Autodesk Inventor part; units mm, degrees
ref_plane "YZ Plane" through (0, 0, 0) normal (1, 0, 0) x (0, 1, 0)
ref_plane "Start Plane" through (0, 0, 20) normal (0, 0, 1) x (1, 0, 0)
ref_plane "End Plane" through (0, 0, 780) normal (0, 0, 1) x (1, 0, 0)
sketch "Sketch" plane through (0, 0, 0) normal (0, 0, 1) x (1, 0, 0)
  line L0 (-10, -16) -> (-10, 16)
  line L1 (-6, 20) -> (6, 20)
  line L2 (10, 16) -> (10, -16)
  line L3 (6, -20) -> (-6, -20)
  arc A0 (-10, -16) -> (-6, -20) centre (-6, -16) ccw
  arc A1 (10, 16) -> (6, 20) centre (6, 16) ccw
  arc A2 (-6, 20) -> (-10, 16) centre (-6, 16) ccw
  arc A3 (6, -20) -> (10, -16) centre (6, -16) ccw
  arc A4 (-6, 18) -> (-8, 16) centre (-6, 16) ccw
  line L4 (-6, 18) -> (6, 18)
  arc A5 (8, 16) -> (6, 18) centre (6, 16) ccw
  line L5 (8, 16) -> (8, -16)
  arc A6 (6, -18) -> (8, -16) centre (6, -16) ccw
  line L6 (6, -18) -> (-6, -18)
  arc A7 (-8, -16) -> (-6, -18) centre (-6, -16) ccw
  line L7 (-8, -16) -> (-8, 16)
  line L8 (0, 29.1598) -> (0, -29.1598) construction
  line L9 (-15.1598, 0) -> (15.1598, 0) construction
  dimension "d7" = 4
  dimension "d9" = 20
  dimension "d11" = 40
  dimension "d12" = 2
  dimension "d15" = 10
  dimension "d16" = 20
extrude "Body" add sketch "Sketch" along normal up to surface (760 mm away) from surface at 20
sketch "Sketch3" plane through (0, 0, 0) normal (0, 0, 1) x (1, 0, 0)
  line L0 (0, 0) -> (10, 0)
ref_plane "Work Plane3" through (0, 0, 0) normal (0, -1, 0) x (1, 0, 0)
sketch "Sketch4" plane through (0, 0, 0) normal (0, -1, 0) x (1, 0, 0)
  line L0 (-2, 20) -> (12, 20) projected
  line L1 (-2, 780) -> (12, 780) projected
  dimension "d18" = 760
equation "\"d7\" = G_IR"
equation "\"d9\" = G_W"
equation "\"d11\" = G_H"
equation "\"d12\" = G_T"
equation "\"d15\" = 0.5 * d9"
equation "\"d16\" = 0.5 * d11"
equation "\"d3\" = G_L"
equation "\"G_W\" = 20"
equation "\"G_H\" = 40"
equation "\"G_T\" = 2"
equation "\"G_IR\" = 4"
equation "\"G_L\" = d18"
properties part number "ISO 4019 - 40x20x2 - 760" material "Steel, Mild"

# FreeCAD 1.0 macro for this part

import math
import FreeCAD as App
import Part
import Sketcher

V = App.Vector

doc = App.newDocument("Part")
params = doc.addObject("Spreadsheet::Sheet", "Params")
for row, (alias, value) in enumerate([
    ("sketch1_radius", "4 mm"),
    ("sketch1_radius2", "2 mm"),
    ("pad1_length", "760 mm"),
], start=1):
    params.set(f"A{row}", alias)
    params.set(f"B{row}", "=" + value)
    params.setAlias(f"B{row}", alias)

body = doc.addObject("PartDesign::Body", "Body")

# Sketch on XY plane
sketch1 = body.newObject("Sketcher::SketchObject", "Sketch")
sketch1.AttachmentSupport = (doc.getObject("XY_Plane"), [""])
sketch1.MapMode = "FlatFace"
sketch1.AttachmentOffset = App.Placement(V(0, 0, 20), App.Rotation())
sketch1.addGeometry(Part.LineSegment(V(-10, 16, 0), V(-10, -16, 0)), False)
sketch1.addGeometry(Part.ArcOfCircle(Part.Circle(V(-6, -16, 0), V(0, 0, 1), 4), math.radians(180), math.radians(270)), False)
sketch1.addGeometry(Part.LineSegment(V(-6, -20, 0), V(6, -20, 0)), False)
sketch1.addGeometry(Part.ArcOfCircle(Part.Circle(V(6, -16, 0), V(0, 0, 1), 4), math.radians(-90), math.radians(0)), False)
sketch1.addGeometry(Part.LineSegment(V(10, -16, 0), V(10, 16, 0)), False)
sketch1.addGeometry(Part.ArcOfCircle(Part.Circle(V(6, 16, 0), V(0, 0, 1), 4), math.radians(0), math.radians(90)), False)
sketch1.addGeometry(Part.LineSegment(V(6, 20, 0), V(-6, 20, 0)), False)
sketch1.addGeometry(Part.ArcOfCircle(Part.Circle(V(-6, 16, 0), V(0, 0, 1), 4), math.radians(90), math.radians(180)), False)
sketch1.addGeometry(Part.ArcOfCircle(Part.Circle(V(-6, 16, 0), V(0, 0, 1), 2), math.radians(90), math.radians(180)), False)
sketch1.addGeometry(Part.LineSegment(V(-6, 18, 0), V(6, 18, 0)), False)
sketch1.addGeometry(Part.ArcOfCircle(Part.Circle(V(6, 16, 0), V(0, 0, 1), 2), math.radians(0), math.radians(90)), False)
sketch1.addGeometry(Part.LineSegment(V(8, 16, 0), V(8, -16, 0)), False)
sketch1.addGeometry(Part.ArcOfCircle(Part.Circle(V(6, -16, 0), V(0, 0, 1), 2), math.radians(-90), math.radians(0)), False)
sketch1.addGeometry(Part.LineSegment(V(6, -18, 0), V(-6, -18, 0)), False)
sketch1.addGeometry(Part.ArcOfCircle(Part.Circle(V(-6, -16, 0), V(0, 0, 1), 2), math.radians(180), math.radians(270)), False)
sketch1.addGeometry(Part.LineSegment(V(-8, -16, 0), V(-8, 16, 0)), False)
sketch1.addConstraint(Sketcher.Constraint("Tangent", 0, 2, 1, 1))
sketch1.addConstraint(Sketcher.Constraint("Tangent", 1, 2, 2, 1))
sketch1.addConstraint(Sketcher.Constraint("Tangent", 2, 2, 3, 1))
sketch1.addConstraint(Sketcher.Constraint("Tangent", 3, 2, 4, 1))
sketch1.addConstraint(Sketcher.Constraint("Tangent", 4, 2, 5, 1))
sketch1.addConstraint(Sketcher.Constraint("Tangent", 5, 2, 6, 1))
sketch1.addConstraint(Sketcher.Constraint("Tangent", 6, 2, 7, 1))
sketch1.addConstraint(Sketcher.Constraint("Tangent", 7, 2, 0, 1))
sketch1.addConstraint(Sketcher.Constraint("Tangent", 8, 1, 9, 1))
sketch1.addConstraint(Sketcher.Constraint("Tangent", 9, 2, 10, 2))
sketch1.addConstraint(Sketcher.Constraint("Tangent", 10, 1, 11, 1))
sketch1.addConstraint(Sketcher.Constraint("Tangent", 11, 2, 12, 2))
sketch1.addConstraint(Sketcher.Constraint("Tangent", 12, 1, 13, 1))
sketch1.addConstraint(Sketcher.Constraint("Tangent", 13, 2, 14, 2))
sketch1.addConstraint(Sketcher.Constraint("Tangent", 14, 1, 15, 1))
sketch1.addConstraint(Sketcher.Constraint("Tangent", 15, 2, 8, 2))
sketch1.addConstraint(Sketcher.Constraint("Vertical", 0))
sketch1.addConstraint(Sketcher.Constraint("Horizontal", 2))
sketch1.addConstraint(Sketcher.Constraint("Vertical", 4))
sketch1.addConstraint(Sketcher.Constraint("Horizontal", 6))
sketch1.addConstraint(Sketcher.Constraint("Horizontal", 9))
sketch1.addConstraint(Sketcher.Constraint("Vertical", 11))
sketch1.addConstraint(Sketcher.Constraint("Horizontal", 13))
sketch1.addConstraint(Sketcher.Constraint("Vertical", 15))
sketch1.addConstraint(Sketcher.Constraint("Coincident", 8, 3, 7, 3))
sketch1.addConstraint(Sketcher.Constraint("Coincident", 10, 3, 5, 3))
sketch1.addConstraint(Sketcher.Constraint("Coincident", 12, 3, 3, 3))
sketch1.addConstraint(Sketcher.Constraint("Equal", 1, 3))
sketch1.addConstraint(Sketcher.Constraint("Equal", 3, 5))
sketch1.addConstraint(Sketcher.Constraint("Equal", 5, 7))
sketch1.addConstraint(Sketcher.Constraint("Equal", 12, 14))
sketch1.addConstraint(Sketcher.Constraint("Symmetric", 1, 3, 5, 3, -1, 1))
sketch1.addConstraint(Sketcher.Constraint("Radius", 1, 4.0))
sketch1.addConstraint(Sketcher.Constraint("Radius", 8, 2.0))
sketch1.addConstraint(Sketcher.Constraint("DistanceX", 0, 2, -1, 1, 10.0))
sketch1.addConstraint(Sketcher.Constraint("DistanceY", 1, 2, -1, 1, 20.0))
sketch1.setExpression("Constraints[32]", "Params.sketch1_radius")
sketch1.setExpression("Constraints[33]", "Params.sketch1_radius2")
pad1 = body.newObject("PartDesign::Pad", "Pad")
pad1.Profile = sketch1
pad1.setExpression("Length", "Params.pad1_length")

doc.recompute()
